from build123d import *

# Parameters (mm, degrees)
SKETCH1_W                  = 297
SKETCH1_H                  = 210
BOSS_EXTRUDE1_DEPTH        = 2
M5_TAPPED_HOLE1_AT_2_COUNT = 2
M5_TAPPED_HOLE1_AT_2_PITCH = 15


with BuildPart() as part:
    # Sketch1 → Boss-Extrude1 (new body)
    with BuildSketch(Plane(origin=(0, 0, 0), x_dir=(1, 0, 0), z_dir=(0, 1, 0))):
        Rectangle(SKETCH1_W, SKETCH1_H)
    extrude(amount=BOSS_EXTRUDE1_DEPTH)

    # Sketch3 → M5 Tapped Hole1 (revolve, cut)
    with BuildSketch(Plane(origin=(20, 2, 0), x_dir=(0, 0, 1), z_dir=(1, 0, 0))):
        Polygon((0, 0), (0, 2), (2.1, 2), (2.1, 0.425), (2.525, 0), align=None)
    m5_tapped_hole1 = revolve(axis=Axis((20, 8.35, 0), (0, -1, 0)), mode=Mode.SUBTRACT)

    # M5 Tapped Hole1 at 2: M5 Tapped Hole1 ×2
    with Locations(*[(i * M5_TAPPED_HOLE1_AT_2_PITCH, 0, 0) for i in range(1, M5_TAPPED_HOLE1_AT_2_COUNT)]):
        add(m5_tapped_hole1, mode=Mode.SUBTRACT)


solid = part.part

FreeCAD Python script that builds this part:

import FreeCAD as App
import Part
import Sketcher

V = App.Vector
Q = App.Units.Quantity

doc = App.newDocument("Part")
body = doc.addObject("PartDesign::Body", "Body")

sketch1 = doc.addObject("Sketcher::SketchObject", "Sketch")
body.addObject(sketch1)
sketch1.AttachmentSupport = (doc.XZ_Plane, [""])
sketch1.MapMode = "FlatFace"
sketch1.addGeometry([
    Part.LineSegment(V(-148.5, -105, 0), V(-148.5, 105, 0)),
    Part.LineSegment(V(-148.5, 105, 0), V(148.5, 105, 0)),
    Part.LineSegment(V(148.5, 105, 0), V(148.5, -105, 0)),
    Part.LineSegment(V(148.5, -105, 0), V(-148.5, -105, 0)),
], False)
sketch1.addConstraint([
    Sketcher.Constraint("Coincident", 0, 2, 1, 1),
    Sketcher.Constraint("Coincident", 1, 2, 2, 1),
    Sketcher.Constraint("Coincident", 2, 2, 3, 1),
    Sketcher.Constraint("Coincident", 3, 2, 0, 1),
    Sketcher.Constraint("Vertical", 0),
    Sketcher.Constraint("Horizontal", 1),
    Sketcher.Constraint("Vertical", 2),
    Sketcher.Constraint("Horizontal", 3),
    Sketcher.Constraint("Symmetric", 0, 2, 2, 2, -1, 1),
    Sketcher.Constraint("DistanceX", 1, 1, 1, 2, Q("297 mm")),
    Sketcher.Constraint("DistanceY", 0, 1, 0, 2, Q("210 mm")),
])
pad1 = doc.addObject("PartDesign::Pad", "Pad")
body.addObject(pad1)
pad1.Profile = sketch1
pad1.Length = 2
pad1.Reversed = True

sketch2 = doc.addObject("Sketcher::SketchObject", "Sketch001")
body.addObject(sketch2)
sketch2.AttachmentSupport = (doc.YZ_Plane, [""])
sketch2.MapMode = "FlatFace"
sketch2.AttachmentOffset = App.Placement(V(0, 0, 20), App.Rotation())
sketch2.addGeometry([
    Part.LineSegment(V(0, 0, 0), V(2, 0, 0)),
    Part.LineSegment(V(2, 0, 0), V(2, 2.525, 0)),
    Part.LineSegment(V(2, 2.525, 0), V(1.575, 2.1, 0)),
    Part.LineSegment(V(1.575, 2.1, 0), V(0, 2.1, 0)),
    Part.LineSegment(V(0, 2.1, 0), V(0, 0, 0)),
], False)
sketch2.addConstraint([
    Sketcher.Constraint("Coincident", 0, 2, 1, 1),
    Sketcher.Constraint("Coincident", 1, 2, 2, 1),
    Sketcher.Constraint("Coincident", 2, 2, 3, 1),
    Sketcher.Constraint("Coincident", 3, 2, 4, 1),
    Sketcher.Constraint("Coincident", 4, 2, 0, 1),
    Sketcher.Constraint("Horizontal", 0),
    Sketcher.Constraint("Vertical", 1),
    Sketcher.Constraint("Horizontal", 3),
    Sketcher.Constraint("Vertical", 4),
    Sketcher.Constraint("Coincident", 4, 2, -1, 1),
    Sketcher.Constraint("DistanceX", 0, 1, 0, 2, Q("2 mm")),
    Sketcher.Constraint("Angle", 2, Q("-135 deg")),
    Sketcher.Constraint("DistanceY", 4, 2, 4, 1, Q("2.1 mm")),
    Sketcher.Constraint("DistanceX", 3, 2, 3, 1, Q("1.575 mm")),
])
groove = doc.addObject("PartDesign::Groove", "Groove")
body.addObject(groove)
groove.Profile = sketch2
groove.ReferenceAxis = (sketch2, ["H_Axis"])
groove.Angle = 360
doc.recompute()

linearpattern = doc.addObject("PartDesign::LinearPattern", "LinearPattern")
body.addObject(linearpattern)
linearpattern.Originals = [groove]
linearpattern.Direction = (doc.X_Axis, [""])
linearpattern.Mode = "offset"
linearpattern.Offset = 15
linearpattern.Occurrences = 2
body.Tip = linearpattern

doc.recompute()
